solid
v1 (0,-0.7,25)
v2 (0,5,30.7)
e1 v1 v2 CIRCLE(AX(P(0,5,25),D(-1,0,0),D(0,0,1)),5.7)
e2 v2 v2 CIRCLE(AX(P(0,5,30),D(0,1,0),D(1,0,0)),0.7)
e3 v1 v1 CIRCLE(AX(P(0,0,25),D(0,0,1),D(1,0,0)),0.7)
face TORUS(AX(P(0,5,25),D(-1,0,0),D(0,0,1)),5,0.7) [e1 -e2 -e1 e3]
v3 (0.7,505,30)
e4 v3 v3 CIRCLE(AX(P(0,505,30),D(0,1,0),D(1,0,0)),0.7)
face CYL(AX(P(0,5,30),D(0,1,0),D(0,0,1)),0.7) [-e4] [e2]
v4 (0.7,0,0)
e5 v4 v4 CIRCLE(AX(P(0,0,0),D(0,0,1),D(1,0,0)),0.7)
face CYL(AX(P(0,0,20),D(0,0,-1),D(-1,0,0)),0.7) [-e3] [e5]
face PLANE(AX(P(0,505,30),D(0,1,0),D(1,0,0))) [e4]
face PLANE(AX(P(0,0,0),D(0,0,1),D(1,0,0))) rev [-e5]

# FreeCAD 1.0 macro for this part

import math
import FreeCAD as App
import Part
import Sketcher

V = App.Vector
Q = App.Units.Quantity

doc = App.newDocument("Part")
body = doc.addObject("PartDesign::Body", "Body")

# Sketch on XY plane
sketch1 = body.newObject("Sketcher::SketchObject", "Sketch")
sketch1.AttachmentSupport = (doc.getObject("XY_Plane"), [""])
sketch1.MapMode = "FlatFace"
sketch1.addGeometry(Part.Circle(V(0, 0, 0), V(0, 0, 1), 0.7), False)
sketch1.addConstraint([
    Sketcher.Constraint("Coincident", 0, 3, -1, 1),
    Sketcher.Constraint("Diameter", 0, Q("1.4 mm")),
])
pad1 = body.newObject("PartDesign::Pad", "Pad")
pad1.Profile = sketch1
pad1.Length = 20

# Sketch on XY plane
sketch2 = body.newObject("Sketcher::SketchObject", "Sketch001")
sketch2.AttachmentSupport = (doc.getObject("XY_Plane"), [""])
sketch2.MapMode = "FlatFace"
sketch2.AttachmentOffset = App.Placement(V(0, 0, 20), App.Rotation())
sketch2.addGeometry(Part.Circle(V(0, 0, 0), V(0, 0, 1), 0.7), False)
sketch2.addConstraint([
    Sketcher.Constraint("Coincident", 0, 3, -1, 1),
    Sketcher.Constraint("Diameter", 0, Q("1.4 mm")),
])

# Sketch on YZ plane
sketch3 = body.newObject("Sketcher::SketchObject", "Sketch002")
sketch3.AttachmentSupport = (doc.getObject("YZ_Plane"), [""])
sketch3.MapMode = "FlatFace"
sketch3.addGeometry([
    Part.LineSegment(V(0, 20, 0), V(0, 25, 0)),
    Part.ArcOfCircle(Part.Circle(V(5, 25, 0), V(0, 0, 1), 5), math.radians(90), math.radians(180)),
    Part.LineSegment(V(5, 30, 0), V(505, 30, 0)),
], False)
sketch3.addConstraint([
    Sketcher.Constraint("Tangent", 0, 2, 1, 2),
    Sketcher.Constraint("Tangent", 1, 1, 2, 1),
    Sketcher.Constraint("Vertical", 0),
    Sketcher.Constraint("Horizontal", 2),
    Sketcher.Constraint("PointOnObject", 0, 1, -2),
    Sketcher.Constraint("Radius", 1, Q("5 mm")),
    Sketcher.Constraint("DistanceX", 2, 1, 2, 2, Q("500 mm")),
    Sketcher.Constraint("DistanceY", 0, 1, 0, 2, Q("5 mm")),
    Sketcher.Constraint("DistanceY", -1, 1, 1, 3, Q("25 mm")),
])
doc.recompute()

additivepipe = body.newObject("PartDesign::AdditivePipe", "AdditivePipe")
additivepipe.Profile = sketch2
additivepipe.Spine = (sketch3, ["Edge1", "Edge2", "Edge3"])

doc.recompute()
